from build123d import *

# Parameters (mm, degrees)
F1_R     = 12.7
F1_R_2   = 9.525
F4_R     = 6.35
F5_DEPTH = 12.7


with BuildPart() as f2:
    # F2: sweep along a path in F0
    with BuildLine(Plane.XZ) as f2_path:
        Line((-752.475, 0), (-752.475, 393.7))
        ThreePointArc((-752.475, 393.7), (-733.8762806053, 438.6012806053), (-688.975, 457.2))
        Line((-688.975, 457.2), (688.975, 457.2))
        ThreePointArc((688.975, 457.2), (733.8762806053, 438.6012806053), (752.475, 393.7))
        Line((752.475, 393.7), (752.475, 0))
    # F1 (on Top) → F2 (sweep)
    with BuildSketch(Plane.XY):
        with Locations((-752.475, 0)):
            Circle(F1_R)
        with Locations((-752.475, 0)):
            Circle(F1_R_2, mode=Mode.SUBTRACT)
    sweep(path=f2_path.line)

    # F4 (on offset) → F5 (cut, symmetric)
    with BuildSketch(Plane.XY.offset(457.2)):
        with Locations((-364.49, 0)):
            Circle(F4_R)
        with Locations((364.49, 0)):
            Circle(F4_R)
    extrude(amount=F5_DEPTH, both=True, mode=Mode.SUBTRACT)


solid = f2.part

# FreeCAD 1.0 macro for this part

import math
import FreeCAD as App
import Part
import Sketcher
Q = App.Units.Quantity

doc = App.newDocument("Part")
body = doc.addObject("PartDesign::Body", "Body")

# Sketch on XY plane
sketch1 = body.newObject("Sketcher::SketchObject", "Sketch")
sketch1.AttachmentSupport = (doc.getObject("XY_Plane"), [""])
sketch1.MapMode = "FlatFace"
sketch1.addGeometry(Part.Circle(App.Vector(-752, 0, 0), App.Vector(0, 0, 1), 13), False)
sketch1.addGeometry(Part.Circle(App.Vector(-752, 0, 0), App.Vector(0, 0, 1), 10), False)
sketch1.addConstraint(Sketcher.Constraint("Coincident", 1, 3, 0, 3))
sketch1.addConstraint(Sketcher.Constraint("PointOnObject", 0, 3, -1))
sketch1.addConstraint(Sketcher.Constraint("Diameter", 0, Q("1 in")))
sketch1.addConstraint(Sketcher.Constraint("Diameter", 1, Q("0.75 in")))
sketch1.addConstraint(Sketcher.Constraint("DistanceX", 0, 3, -1, 1, Q("29.625 in")))

# Sketch on XZ plane
sketch2 = body.newObject("Sketcher::SketchObject", "Sketch001")
sketch2.AttachmentSupport = (doc.getObject("XZ_Plane"), [""])
sketch2.MapMode = "FlatFace"
sketch2.addGeometry(Part.LineSegment(App.Vector(-752, 0, 0), App.Vector(-752, 394, 0)), False)
sketch2.addGeometry(Part.ArcOfCircle(Part.Circle(App.Vector(-689, 394, 0), App.Vector(0, 0, 1), 64), math.radians(90), math.radians(180)), False)
sketch2.addGeometry(Part.LineSegment(App.Vector(-689, 457, 0), App.Vector(689, 457, 0)), False)
sketch2.addGeometry(Part.ArcOfCircle(Part.Circle(App.Vector(689, 394, 0), App.Vector(0, 0, 1), 64), math.radians(0), math.radians(90)), False)
sketch2.addGeometry(Part.LineSegment(App.Vector(752, 394, 0), App.Vector(752, 0, 0)), False)
sketch2.addConstraint(Sketcher.Constraint("Tangent", 0, 2, 1, 2))
sketch2.addConstraint(Sketcher.Constraint("Tangent", 1, 1, 2, 1))
sketch2.addConstraint(Sketcher.Constraint("Tangent", 2, 2, 3, 2))
sketch2.addConstraint(Sketcher.Constraint("Tangent", 3, 1, 4, 1))
sketch2.addConstraint(Sketcher.Constraint("Vertical", 0))
sketch2.addConstraint(Sketcher.Constraint("Horizontal", 2))
sketch2.addConstraint(Sketcher.Constraint("Vertical", 4))
sketch2.addConstraint(Sketcher.Constraint("Equal", 1, 3))
sketch2.addConstraint(Sketcher.Constraint("Symmetric", 0, 1, 4, 2, -1, 1))
sketch2.addConstraint(Sketcher.Constraint("PointOnObject", 0, 1, -1))
sketch2.addConstraint(Sketcher.Constraint("Radius", 1, Q("2.5 in")))
sketch2.addConstraint(Sketcher.Constraint("DistanceY", 0, 1, 0, 2, Q("15.5 in")))
sketch2.addConstraint(Sketcher.Constraint("DistanceX", 2, 1, 2, 2, Q("54.25 in")))
doc.recompute()

additivepipe = body.newObject("PartDesign::AdditivePipe", "AdditivePipe")
additivepipe.Profile = sketch1
additivepipe.Spine = (sketch2, ["Edge1", "Edge2", "Edge3", "Edge4", "Edge5"])

# Sketch on XY plane
sketch3 = body.newObject("Sketcher::SketchObject", "Sketch002")
sketch3.AttachmentSupport = (doc.getObject("XY_Plane"), [""])
sketch3.MapMode = "FlatFace"
sketch3.AttachmentOffset = App.Placement(App.Vector(0, 0, 18 * 25.4), App.Rotation())
sketch3.addGeometry(Part.Circle(App.Vector(-364, 0, 0), App.Vector(0, 0, 1), 6), False)
sketch3.addGeometry(Part.Circle(App.Vector(364, 0, 0), App.Vector(0, 0, 1), 6), False)
sketch3.addConstraint(Sketcher.Constraint("Equal", 0, 1))
sketch3.addConstraint(Sketcher.Constraint("Symmetric", 0, 3, 1, 3, -1, 1))
sketch3.addConstraint(Sketcher.Constraint("PointOnObject", 0, 3, -1))
sketch3.addConstraint(Sketcher.Constraint("Diameter", 0, Q("0.5 in")))
sketch3.addConstraint(Sketcher.Constraint("DistanceX", 0, 3, 1, 3, Q("28.7 in")))
pocket1 = body.newObject("PartDesign::Pocket", "Pocket")
pocket1.Profile = sketch3
pocket1.Length = Q("1 in")
pocket1.Midplane = True

doc.recompute()
